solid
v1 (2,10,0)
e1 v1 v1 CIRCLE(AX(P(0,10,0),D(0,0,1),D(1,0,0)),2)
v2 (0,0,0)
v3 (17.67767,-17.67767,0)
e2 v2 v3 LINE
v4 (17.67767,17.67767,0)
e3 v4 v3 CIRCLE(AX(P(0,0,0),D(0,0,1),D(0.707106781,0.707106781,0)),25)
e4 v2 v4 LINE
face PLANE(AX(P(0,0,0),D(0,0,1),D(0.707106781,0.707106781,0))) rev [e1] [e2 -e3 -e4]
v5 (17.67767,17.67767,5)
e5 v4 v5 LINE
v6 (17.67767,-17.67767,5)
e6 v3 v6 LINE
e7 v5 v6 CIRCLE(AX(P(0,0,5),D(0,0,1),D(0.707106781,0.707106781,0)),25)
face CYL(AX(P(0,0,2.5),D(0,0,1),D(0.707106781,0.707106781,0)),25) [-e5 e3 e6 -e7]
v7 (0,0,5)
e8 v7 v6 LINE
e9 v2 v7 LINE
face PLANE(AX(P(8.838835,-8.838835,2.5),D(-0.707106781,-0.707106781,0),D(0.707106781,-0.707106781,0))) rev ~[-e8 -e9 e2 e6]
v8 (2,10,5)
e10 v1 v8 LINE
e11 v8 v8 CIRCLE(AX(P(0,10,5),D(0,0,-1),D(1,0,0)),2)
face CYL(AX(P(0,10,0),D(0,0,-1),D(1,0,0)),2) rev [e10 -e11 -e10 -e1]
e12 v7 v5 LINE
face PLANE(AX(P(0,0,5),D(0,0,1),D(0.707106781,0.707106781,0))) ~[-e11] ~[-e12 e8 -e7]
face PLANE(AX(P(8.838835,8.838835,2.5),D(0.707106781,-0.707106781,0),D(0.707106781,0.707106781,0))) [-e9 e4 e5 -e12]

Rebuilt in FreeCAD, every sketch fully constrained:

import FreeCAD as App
import Part
import Sketcher
from FreeCAD import Vector


def add_polygon(sketch, points):
    """Adds a closed chain of lines whose ends are joined by coincident constraints."""
    first, n = sketch.GeometryCount, len(points)
    for a, b in zip(points, points[1:] + points[:1]):
        sketch.addGeometry(Part.LineSegment(App.Vector(*a, 0), App.Vector(*b, 0)), False)
    for i in range(n):
        sketch.addConstraint(Sketcher.Constraint("Coincident", first + i, 2, first + (i + 1) % n, 1))

doc = App.newDocument("Part")
body = doc.addObject("PartDesign::Body", "Body")

# Sketch on XY plane
sketch1 = body.newObject("Sketcher::SketchObject", "Sketch")
sketch1.AttachmentSupport = (doc.getObject("XY_Plane"), [""])
sketch1.MapMode = "FlatFace"
sketch1.addGeometry(Part.Circle(Vector(0, 10, 0), Vector(0, 0, 1), 2), False)
sketch1.addConstraint(Sketcher.Constraint("PointOnObject", 0, 3, -2))
sketch1.addConstraint(Sketcher.Constraint("Diameter", 0, 4.0))
sketch1.addConstraint(Sketcher.Constraint("DistanceY", -1, 1, 0, 3, 10.0))
pad1 = body.newObject("PartDesign::Pad", "Pad")
pad1.Profile = sketch1
pad1.Length = 10
body2 = doc.addObject("PartDesign::Body", "Body001")

# Sketch on XZ plane
sketch2 = body2.newObject("Sketcher::SketchObject", "Sketch001")
sketch2.AttachmentSupport = (doc.getObject("XZ_Plane001"), [""])
sketch2.MapMode = "FlatFace"
add_polygon(sketch2, [(0, 5), (0, 0), (25, 0), (25, 5)])  # lines 0-3
sketch2.addConstraint(Sketcher.Constraint("Vertical", 0))
sketch2.addConstraint(Sketcher.Constraint("Horizontal", 1))
sketch2.addConstraint(Sketcher.Constraint("Vertical", 2))
sketch2.addConstraint(Sketcher.Constraint("Horizontal", 3))
sketch2.addConstraint(Sketcher.Constraint("Coincident", 0, 2, -1, 1))
sketch2.addConstraint(Sketcher.Constraint("DistanceX", 1, 1, 1, 2, 25.0))
sketch2.addConstraint(Sketcher.Constraint("DistanceY", 0, 2, 0, 1, 5.0))
revolution = body2.newObject("PartDesign::Revolution", "Revolution")
revolution.Profile = sketch2
revolution.ReferenceAxis = (sketch2, ["V_Axis"])
revolution.Angle = 270
body3 = doc.addObject("PartDesign::Body", "Body002")
doc.recompute()

body2.Placement = App.Placement(Vector(0, 0, 0), App.Rotation(Vector(0, 0, 1), 45))
boolean = body3.newObject("PartDesign::Boolean", "Boolean")
boolean.Type = "Fuse"
boolean.addObjects([body2])
doc.recompute()

boolean2 = body3.newObject("PartDesign::Boolean", "Boolean001")
boolean2.Type = "Cut"
boolean2.addObjects([body])

doc.recompute()
